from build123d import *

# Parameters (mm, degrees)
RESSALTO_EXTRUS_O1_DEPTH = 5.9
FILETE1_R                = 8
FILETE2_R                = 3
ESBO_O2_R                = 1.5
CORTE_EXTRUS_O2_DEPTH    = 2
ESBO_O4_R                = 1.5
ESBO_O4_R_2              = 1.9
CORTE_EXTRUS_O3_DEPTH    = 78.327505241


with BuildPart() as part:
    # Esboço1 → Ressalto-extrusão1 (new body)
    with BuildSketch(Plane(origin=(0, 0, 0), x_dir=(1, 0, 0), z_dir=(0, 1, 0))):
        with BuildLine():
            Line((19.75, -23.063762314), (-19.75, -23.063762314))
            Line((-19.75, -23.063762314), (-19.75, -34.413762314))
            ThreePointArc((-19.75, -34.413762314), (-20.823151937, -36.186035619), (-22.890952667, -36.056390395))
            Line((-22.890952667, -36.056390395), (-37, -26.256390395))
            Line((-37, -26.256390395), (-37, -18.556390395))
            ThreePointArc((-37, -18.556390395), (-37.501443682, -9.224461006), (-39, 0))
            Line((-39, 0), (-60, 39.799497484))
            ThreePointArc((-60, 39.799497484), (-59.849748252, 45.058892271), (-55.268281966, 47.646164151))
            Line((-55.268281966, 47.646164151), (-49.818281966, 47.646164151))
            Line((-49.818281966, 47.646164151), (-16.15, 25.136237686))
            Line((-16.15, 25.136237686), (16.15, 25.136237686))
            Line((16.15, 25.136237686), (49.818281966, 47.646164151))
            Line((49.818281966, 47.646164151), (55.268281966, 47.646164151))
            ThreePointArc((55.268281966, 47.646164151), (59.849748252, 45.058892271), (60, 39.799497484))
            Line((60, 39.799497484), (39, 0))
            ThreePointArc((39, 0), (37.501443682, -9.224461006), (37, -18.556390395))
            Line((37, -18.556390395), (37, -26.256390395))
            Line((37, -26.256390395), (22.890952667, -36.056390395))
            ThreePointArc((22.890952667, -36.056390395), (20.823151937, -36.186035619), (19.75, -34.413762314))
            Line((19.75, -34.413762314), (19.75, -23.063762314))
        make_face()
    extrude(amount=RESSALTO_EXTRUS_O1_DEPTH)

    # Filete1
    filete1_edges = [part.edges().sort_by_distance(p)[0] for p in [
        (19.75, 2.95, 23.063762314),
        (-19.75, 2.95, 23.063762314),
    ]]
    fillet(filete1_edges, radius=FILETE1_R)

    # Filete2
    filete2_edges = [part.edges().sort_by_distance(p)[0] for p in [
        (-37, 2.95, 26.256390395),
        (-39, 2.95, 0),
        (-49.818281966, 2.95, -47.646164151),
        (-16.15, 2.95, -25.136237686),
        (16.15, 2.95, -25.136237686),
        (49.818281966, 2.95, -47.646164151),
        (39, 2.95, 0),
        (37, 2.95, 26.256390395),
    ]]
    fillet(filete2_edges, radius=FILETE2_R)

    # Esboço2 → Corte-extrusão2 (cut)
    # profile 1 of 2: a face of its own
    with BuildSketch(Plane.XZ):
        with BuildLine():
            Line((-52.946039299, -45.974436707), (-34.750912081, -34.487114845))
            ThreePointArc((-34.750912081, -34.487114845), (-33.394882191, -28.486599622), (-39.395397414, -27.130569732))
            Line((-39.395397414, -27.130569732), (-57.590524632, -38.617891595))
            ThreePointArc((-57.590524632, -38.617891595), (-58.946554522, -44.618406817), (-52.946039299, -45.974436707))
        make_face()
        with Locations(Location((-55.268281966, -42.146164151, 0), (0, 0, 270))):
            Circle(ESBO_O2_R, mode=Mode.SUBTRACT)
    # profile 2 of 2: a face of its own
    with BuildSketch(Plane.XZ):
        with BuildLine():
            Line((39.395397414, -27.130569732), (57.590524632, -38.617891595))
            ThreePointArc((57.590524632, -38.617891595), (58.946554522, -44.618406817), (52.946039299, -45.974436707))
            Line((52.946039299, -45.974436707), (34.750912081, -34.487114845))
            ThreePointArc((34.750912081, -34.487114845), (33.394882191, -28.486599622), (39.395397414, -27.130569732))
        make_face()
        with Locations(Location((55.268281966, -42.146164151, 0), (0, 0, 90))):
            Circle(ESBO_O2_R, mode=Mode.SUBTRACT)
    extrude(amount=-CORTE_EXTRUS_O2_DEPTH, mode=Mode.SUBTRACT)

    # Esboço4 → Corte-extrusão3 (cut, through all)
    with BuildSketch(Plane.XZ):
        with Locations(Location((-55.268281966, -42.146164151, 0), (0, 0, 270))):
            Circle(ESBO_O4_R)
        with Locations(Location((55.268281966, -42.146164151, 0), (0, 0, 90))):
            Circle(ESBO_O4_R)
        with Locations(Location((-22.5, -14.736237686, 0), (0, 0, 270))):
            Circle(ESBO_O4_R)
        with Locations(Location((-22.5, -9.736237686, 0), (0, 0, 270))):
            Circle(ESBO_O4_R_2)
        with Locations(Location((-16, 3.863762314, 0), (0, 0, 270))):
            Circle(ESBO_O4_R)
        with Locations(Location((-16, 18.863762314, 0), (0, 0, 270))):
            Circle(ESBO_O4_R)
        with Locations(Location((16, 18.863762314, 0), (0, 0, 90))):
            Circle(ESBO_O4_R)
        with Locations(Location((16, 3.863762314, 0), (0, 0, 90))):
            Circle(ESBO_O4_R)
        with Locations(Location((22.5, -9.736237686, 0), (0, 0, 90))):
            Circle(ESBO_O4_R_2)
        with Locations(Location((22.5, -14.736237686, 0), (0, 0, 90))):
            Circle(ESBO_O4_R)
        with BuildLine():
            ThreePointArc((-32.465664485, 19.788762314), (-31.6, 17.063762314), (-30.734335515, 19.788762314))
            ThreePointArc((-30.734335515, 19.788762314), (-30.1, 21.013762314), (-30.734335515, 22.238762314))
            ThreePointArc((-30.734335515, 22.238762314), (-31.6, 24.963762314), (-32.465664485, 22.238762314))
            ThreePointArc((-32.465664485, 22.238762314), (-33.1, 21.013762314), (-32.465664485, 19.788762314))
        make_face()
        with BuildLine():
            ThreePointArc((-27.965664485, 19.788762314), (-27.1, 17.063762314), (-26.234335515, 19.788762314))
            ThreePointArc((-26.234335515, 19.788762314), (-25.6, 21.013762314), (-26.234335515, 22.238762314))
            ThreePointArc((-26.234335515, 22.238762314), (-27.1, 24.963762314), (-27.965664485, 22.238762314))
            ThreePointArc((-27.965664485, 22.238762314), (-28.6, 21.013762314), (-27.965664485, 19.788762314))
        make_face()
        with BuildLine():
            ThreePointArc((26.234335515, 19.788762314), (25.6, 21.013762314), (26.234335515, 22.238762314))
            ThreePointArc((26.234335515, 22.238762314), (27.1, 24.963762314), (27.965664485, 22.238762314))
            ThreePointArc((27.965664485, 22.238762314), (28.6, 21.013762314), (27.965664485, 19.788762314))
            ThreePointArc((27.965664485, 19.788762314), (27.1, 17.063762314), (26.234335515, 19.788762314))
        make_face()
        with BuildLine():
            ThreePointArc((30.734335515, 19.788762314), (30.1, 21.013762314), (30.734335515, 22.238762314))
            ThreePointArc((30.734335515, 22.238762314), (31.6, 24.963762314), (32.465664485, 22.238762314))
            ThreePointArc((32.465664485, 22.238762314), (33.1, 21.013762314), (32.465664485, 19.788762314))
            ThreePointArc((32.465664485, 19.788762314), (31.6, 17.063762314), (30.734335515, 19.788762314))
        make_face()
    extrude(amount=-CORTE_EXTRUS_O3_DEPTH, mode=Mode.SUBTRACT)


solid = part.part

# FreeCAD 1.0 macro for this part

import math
import FreeCAD as App
import Part
import Sketcher
Q = App.Units.Quantity


def edges_at(feature, points):
    """Names of the edges that pass closest to the given points."""
    edges = feature.Shape.Edges
    near = lambda p: min(range(len(edges)), key=lambda i: edges[i].distToShape(Part.Vertex(*p))[0])
    return sorted({f"Edge{near(p) + 1}" for p in points})

doc = App.newDocument("Part")
body = doc.addObject("PartDesign::Body", "Body")

# Sketch on XZ plane
sketch1 = body.newObject("Sketcher::SketchObject", "Sketch")
sketch1.AttachmentSupport = (doc.getObject("XZ_Plane"), [""])
sketch1.MapMode = "FlatFace"
sketch1.addGeometry([
    Part.LineSegment(App.Vector(-19.8, 23.1, 0), App.Vector(19.8, 23.1, 0)),  # 0
    Part.LineSegment(App.Vector(19.8, 23.1, 0), App.Vector(19.8, 34.4, 0)),  # 1
    Part.ArcOfCircle(Part.Circle(App.Vector(21.8, 34.4, 0), App.Vector(0, 0, 1), 2), math.radians(55), math.radians(180)),  # 2
    Part.LineSegment(App.Vector(22.9, 36.1, 0), App.Vector(37, 26.3, 0)),  # 3
    Part.LineSegment(App.Vector(37, 26.3, 0), App.Vector(37, 18.6, 0)),  # 4
    Part.ArcOfCircle(Part.Circle(App.Vector(124.1, 18.6, 0), App.Vector(0, 0, 1), 87.1), math.radians(-180), math.radians(-167.7)),  # 5
    Part.LineSegment(App.Vector(39, 0, 0), App.Vector(60, -39.8, 0)),  # 6
    Part.ArcOfCircle(Part.Circle(App.Vector(55.3, -42.3, 0), App.Vector(0, 0, 1), 5.3), math.radians(-90), math.radians(28)),  # 7
    Part.LineSegment(App.Vector(55.3, -47.6, 0), App.Vector(49.8, -47.6, 0)),  # 8
    Part.LineSegment(App.Vector(49.8, -47.6, 0), App.Vector(16.1, -25.1, 0)),  # 9
    Part.LineSegment(App.Vector(16.1, -25.1, 0), App.Vector(-16.1, -25.1, 0)),  # 10
    Part.LineSegment(App.Vector(-16.1, -25.1, 0), App.Vector(-49.8, -47.6, 0)),  # 11
    Part.LineSegment(App.Vector(-49.8, -47.6, 0), App.Vector(-55.3, -47.6, 0)),  # 12
    Part.ArcOfCircle(Part.Circle(App.Vector(-55.3, -42.3, 0), App.Vector(0, 0, 1), 5.3), math.radians(152), math.radians(270)),  # 13
    Part.LineSegment(App.Vector(-60, -39.8, 0), App.Vector(-39, 0, 0)),  # 14
    Part.ArcOfCircle(Part.Circle(App.Vector(-124.1, 18.6, 0), App.Vector(0, 0, 1), 87.1), math.radians(-12.3), math.radians(0)),  # 15
    Part.LineSegment(App.Vector(-37, 18.6, 0), App.Vector(-37, 26.3, 0)),  # 16
    Part.LineSegment(App.Vector(-37, 26.3, 0), App.Vector(-22.9, 36.1, 0)),  # 17
    Part.ArcOfCircle(Part.Circle(App.Vector(-21.8, 34.4, 0), App.Vector(0, 0, 1), 2), math.radians(0), math.radians(125)),  # 18
    Part.LineSegment(App.Vector(-19.8, 34.4, 0), App.Vector(-19.8, 23.1, 0)),  # 19
], False)
sketch1.addConstraint([
    Sketcher.Constraint("Coincident", 0, 2, 1, 1),
    Sketcher.Constraint("Tangent", 1, 2, 2, 2),
    Sketcher.Constraint("Tangent", 2, 1, 3, 1),
    Sketcher.Constraint("Coincident", 3, 2, 4, 1),
    Sketcher.Constraint("Tangent", 4, 2, 5, 1),
    Sketcher.Constraint("Coincident", 5, 2, 6, 1),
    Sketcher.Constraint("Tangent", 6, 2, 7, 2),
    Sketcher.Constraint("Tangent", 7, 1, 8, 1),
    Sketcher.Constraint("Coincident", 8, 2, 9, 1),
    Sketcher.Constraint("Coincident", 9, 2, 10, 1),
    Sketcher.Constraint("Coincident", 10, 2, 11, 1),
    Sketcher.Constraint("Coincident", 11, 2, 12, 1),
    Sketcher.Constraint("Tangent", 12, 2, 13, 2),
    Sketcher.Constraint("Tangent", 13, 1, 14, 1),
    Sketcher.Constraint("Coincident", 14, 2, 15, 1),
    Sketcher.Constraint("Tangent", 15, 2, 16, 1),
    Sketcher.Constraint("Coincident", 16, 2, 17, 1),
    Sketcher.Constraint("Tangent", 17, 2, 18, 2),
    Sketcher.Constraint("Tangent", 18, 1, 19, 1),
    Sketcher.Constraint("Coincident", 19, 2, 0, 1),
    Sketcher.Constraint("Horizontal", 0),
    Sketcher.Constraint("Vertical", 1),
    Sketcher.Constraint("Vertical", 4),
    Sketcher.Constraint("Horizontal", 8),
    Sketcher.Constraint("Horizontal", 10),
    Sketcher.Constraint("Horizontal", 12),
    Sketcher.Constraint("Vertical", 16),
    Sketcher.Constraint("Vertical", 19),
    Sketcher.Constraint("Equal", 7, 13),
    Sketcher.Constraint("Equal", 5, 15),
    Sketcher.Constraint("Equal", 2, 18),
    Sketcher.Constraint("Symmetric", 5, 2, 14, 2, -1, 1),
    Sketcher.Constraint("Symmetric", 7, 3, 13, 3, -2),
    Sketcher.Constraint("Symmetric", 5, 3, 15, 3, -2),
    Sketcher.Constraint("Symmetric", 2, 3, 18, 3, -2),
    Sketcher.Constraint("Horizontal", 3, 2, 16, 2),
    Sketcher.Constraint("Equal", 8, 12),
    Sketcher.Constraint("Equal", 9, 11),
    Sketcher.Constraint("Radius", 2, Q("2 mm")),
    Sketcher.Constraint("Radius", 7, Q("5.35 mm")),
    Sketcher.Constraint("Distance", 6, Q("45 mm")),
    Sketcher.Constraint("DistanceX", 0, 1, 0, 2, Q("39.5 mm")),
    Sketcher.Constraint("DistanceX", 10, 2, 10, 1, Q("32.3 mm")),
    Sketcher.Constraint("DistanceY", 4, 2, 4, 1, Q("7.7 mm")),
    Sketcher.Constraint("DistanceX", -1, 1, 3, 2, Q("37 mm")),
    Sketcher.Constraint("DistanceX", -1, 1, 5, 2, Q("39 mm")),
    Sketcher.Constraint("DistanceX", -1, 1, 6, 2, Q("60 mm")),
    Sketcher.Constraint("Distance", 9, Q("40.5 mm")),
    Sketcher.Constraint("DistanceX", 8, 2, 8, 1, Q("5.45 mm")),
    Sketcher.Constraint("DistanceY", 1, 1, 1, 2, Q("11.35 mm")),
    Sketcher.Constraint("DistanceY", 3, 2, 2, 1, Q("9.8 mm")),
    Sketcher.Constraint("DistanceY", 10, 2, 0, 2, Q("48.2 mm")),
])
pad1 = body.newObject("PartDesign::Pad", "Pad")
pad1.Profile = sketch1
pad1.Length = 5.9
pad1.Reversed = True
doc.recompute()

fillet = body.newObject("PartDesign::Fillet", "Fillet")
fillet.Base = (pad1, edges_at(pad1, [(19.75, 2.95, 23.064), (-19.75, 2.95, 23.064)]))
fillet.Radius = 8
doc.recompute()

fillet2 = body.newObject("PartDesign::Fillet", "Fillet001")
fillet2.Base = (fillet, edges_at(fillet, [
    (-37, 2.95, 26.256),
    (-39, 2.95, 0),
    (-49.818, 2.95, -47.646),
    (-16.15, 2.95, -25.136),
    (16.15, 2.95, -25.136),
    (49.818, 2.95, -47.646),
    (39, 2.95, 0),
    (37, 2.95, 26.256),
]))
fillet2.Radius = 3

# Sketch on XZ plane
sketch2 = body.newObject("Sketcher::SketchObject", "Sketch001")
sketch2.AttachmentSupport = (doc.getObject("XZ_Plane"), [""])
sketch2.MapMode = "FlatFace"
sketch2.addGeometry([
    Part.LineSegment(App.Vector(-52.9, -46, 0), App.Vector(-34.8, -34.5, 0)),  # 0
    Part.ArcOfCircle(Part.Circle(App.Vector(-37.1, -30.8, 0), App.Vector(0, 0, 1), 4.3), math.radians(-58), math.radians(122)),  # 1
    Part.LineSegment(App.Vector(-39.4, -27.1, 0), App.Vector(-57.6, -38.6, 0)),  # 2
    Part.ArcOfCircle(Part.Circle(App.Vector(-55.3, -42.3, 0), App.Vector(0, 0, 1), 4.3), math.radians(122), math.radians(302)),  # 3
    Part.Circle(App.Vector(-55.3, -42.1, 0), App.Vector(0, 0, 1), 1.5),  # 4
    Part.LineSegment(App.Vector(57.6, -38.6, 0), App.Vector(39.4, -27.1, 0)),  # 5
    Part.ArcOfCircle(Part.Circle(App.Vector(37.1, -30.8, 0), App.Vector(0, 0, 1), 4.3), math.radians(58), math.radians(238)),  # 6
    Part.LineSegment(App.Vector(34.8, -34.5, 0), App.Vector(52.9, -46, 0)),  # 7
    Part.ArcOfCircle(Part.Circle(App.Vector(55.3, -42.3, 0), App.Vector(0, 0, 1), 4.3), math.radians(-122), math.radians(58)),  # 8
    Part.Circle(App.Vector(55.3, -42.1, 0), App.Vector(0, 0, 1), 1.5),  # 9
], False)
sketch2.addConstraint([
    Sketcher.Constraint("Tangent", 0, 2, 1, 1),
    Sketcher.Constraint("Tangent", 1, 2, 2, 1),
    Sketcher.Constraint("Tangent", 2, 2, 3, 1),
    Sketcher.Constraint("Tangent", 3, 2, 0, 1),
    Sketcher.Constraint("Tangent", 5, 2, 6, 1),
    Sketcher.Constraint("Tangent", 6, 2, 7, 1),
    Sketcher.Constraint("Tangent", 7, 2, 8, 1),
    Sketcher.Constraint("Tangent", 8, 2, 5, 1),
    Sketcher.Constraint("Equal", 1, 3),
    Sketcher.Constraint("Equal", 3, 6),
    Sketcher.Constraint("Equal", 6, 8),
    Sketcher.Constraint("Equal", 4, 9),
    Sketcher.Constraint("Symmetric", 1, 3, 6, 3, -2),
    Sketcher.Constraint("Symmetric", 3, 3, 8, 3, -2),
    Sketcher.Constraint("Symmetric", 4, 3, 9, 3, -2),
    Sketcher.Constraint("Vertical", 3, 3, 4, 3),
    Sketcher.Constraint("Diameter", 4, Q("3 mm")),
    Sketcher.Constraint("Radius", 1, Q("4.35 mm")),
    Sketcher.Constraint("DistanceY", 3, 3, 4, 3, Q("0.15 mm")),
    Sketcher.Constraint("DistanceX", 3, 3, -1, 1, Q("55.268282 mm")),
    Sketcher.Constraint("DistanceY", 1, 2, -1, 1, Q("27.13057 mm")),
    Sketcher.Constraint("DistanceY", 2, 2, -1, 1, Q("38.617892 mm")),
    Sketcher.Constraint("DistanceX", 3, 2, -1, 1, Q("52.946039 mm")),
])
pocket1 = body.newObject("PartDesign::Pocket", "Pocket")
pocket1.Profile = sketch2
pocket1.Length = 2

# Sketch on XZ plane
sketch3 = body.newObject("Sketcher::SketchObject", "Sketch002")
sketch3.AttachmentSupport = (doc.getObject("XZ_Plane"), [""])
sketch3.MapMode = "FlatFace"
sketch3.addGeometry([
    Part.Circle(App.Vector(-55.3, -42.1, 0), App.Vector(0, 0, 1), 1.5),  # 0
    Part.Circle(App.Vector(55.3, -42.1, 0), App.Vector(0, 0, 1), 1.5),  # 1
    Part.Circle(App.Vector(-22.5, -14.7, 0), App.Vector(0, 0, 1), 1.5),  # 2
    Part.Circle(App.Vector(-22.5, -9.7, 0), App.Vector(0, 0, 1), 1.9),  # 3
    Part.Circle(App.Vector(-16, 3.9, 0), App.Vector(0, 0, 1), 1.5),  # 4
    Part.Circle(App.Vector(-16, 18.9, 0), App.Vector(0, 0, 1), 1.5),  # 5
    Part.Circle(App.Vector(16, 18.9, 0), App.Vector(0, 0, 1), 1.5),  # 6
    Part.Circle(App.Vector(16, 3.9, 0), App.Vector(0, 0, 1), 1.5),  # 7
    Part.Circle(App.Vector(22.5, -9.7, 0), App.Vector(0, 0, 1), 1.9),  # 8
    Part.Circle(App.Vector(22.5, -14.7, 0), App.Vector(0, 0, 1), 1.5),  # 9
    Part.ArcOfCircle(Part.Circle(App.Vector(-31.6, 18.6, 0), App.Vector(0, 0, 1), 1.5), math.radians(125), math.radians(415)),  # 10
    Part.ArcOfCircle(Part.Circle(App.Vector(-31.6, 21, 0), App.Vector(0, 0, 1), 1.5), math.radians(-55), math.radians(55)),  # 11
    Part.ArcOfCircle(Part.Circle(App.Vector(-31.6, 23.5, 0), App.Vector(0, 0, 1), 1.5), math.radians(-55), math.radians(235)),  # 12
    Part.ArcOfCircle(Part.Circle(App.Vector(-31.6, 21, 0), App.Vector(0, 0, 1), 1.5), math.radians(125), math.radians(235)),  # 13
    Part.ArcOfCircle(Part.Circle(App.Vector(-27.1, 18.6, 0), App.Vector(0, 0, 1), 1.5), math.radians(125), math.radians(415)),  # 14
    Part.ArcOfCircle(Part.Circle(App.Vector(-27.1, 21, 0), App.Vector(0, 0, 1), 1.5), math.radians(-55), math.radians(55)),  # 15
    Part.ArcOfCircle(Part.Circle(App.Vector(-27.1, 23.5, 0), App.Vector(0, 0, 1), 1.5), math.radians(-55), math.radians(235)),  # 16
    Part.ArcOfCircle(Part.Circle(App.Vector(-27.1, 21, 0), App.Vector(0, 0, 1), 1.5), math.radians(125), math.radians(235)),  # 17
    Part.ArcOfCircle(Part.Circle(App.Vector(27.1, 21, 0), App.Vector(0, 0, 1), 1.5), math.radians(125), math.radians(235)),  # 18
    Part.ArcOfCircle(Part.Circle(App.Vector(27.1, 18.6, 0), App.Vector(0, 0, 1), 1.5), math.radians(125), math.radians(415)),  # 19
    Part.ArcOfCircle(Part.Circle(App.Vector(27.1, 21, 0), App.Vector(0, 0, 1), 1.5), math.radians(-55), math.radians(55)),  # 20
    Part.ArcOfCircle(Part.Circle(App.Vector(27.1, 23.5, 0), App.Vector(0, 0, 1), 1.5), math.radians(-55), math.radians(235)),  # 21
    Part.ArcOfCircle(Part.Circle(App.Vector(31.6, 21, 0), App.Vector(0, 0, 1), 1.5), math.radians(125), math.radians(235)),  # 22
    Part.ArcOfCircle(Part.Circle(App.Vector(31.6, 18.6, 0), App.Vector(0, 0, 1), 1.5), math.radians(125), math.radians(415)),  # 23
    Part.ArcOfCircle(Part.Circle(App.Vector(31.6, 21, 0), App.Vector(0, 0, 1), 1.5), math.radians(-55), math.radians(55)),  # 24
    Part.ArcOfCircle(Part.Circle(App.Vector(31.6, 23.5, 0), App.Vector(0, 0, 1), 1.5), math.radians(-55), math.radians(235)),  # 25
], False)
sketch3.addConstraint([
    Sketcher.Constraint("Coincident", 10, 2, 11, 1),
    Sketcher.Constraint("Coincident", 11, 2, 12, 1),
    Sketcher.Constraint("Coincident", 12, 2, 13, 1),
    Sketcher.Constraint("Coincident", 13, 2, 10, 1),
    Sketcher.Constraint("Coincident", 14, 2, 15, 1),
    Sketcher.Constraint("Coincident", 15, 2, 16, 1),
    Sketcher.Constraint("Coincident", 16, 2, 17, 1),
    Sketcher.Constraint("Coincident", 17, 2, 14, 1),
    Sketcher.Constraint("Coincident", 18, 2, 19, 1),
    Sketcher.Constraint("Coincident", 19, 2, 20, 1),
    Sketcher.Constraint("Coincident", 20, 2, 21, 1),
    Sketcher.Constraint("Coincident", 21, 2, 18, 1),
    Sketcher.Constraint("Coincident", 22, 2, 23, 1),
    Sketcher.Constraint("Coincident", 23, 2, 24, 1),
    Sketcher.Constraint("Coincident", 24, 2, 25, 1),
    Sketcher.Constraint("Coincident", 25, 2, 22, 1),
    Sketcher.Constraint("Coincident", 13, 3, 11, 3),
    Sketcher.Constraint("Coincident", 17, 3, 15, 3),
    Sketcher.Constraint("Coincident", 20, 3, 18, 3),
    Sketcher.Constraint("Coincident", 24, 3, 22, 3),
    Sketcher.Constraint("Equal", 0, 1),
    Sketcher.Constraint("Equal", 1, 2),
    Sketcher.Constraint("Equal", 2, 4),
    Sketcher.Constraint("Equal", 4, 5),
    Sketcher.Constraint("Equal", 5, 6),
    Sketcher.Constraint("Equal", 6, 7),
    Sketcher.Constraint("Equal", 3, 8),
    Sketcher.Constraint("Equal", 7, 9),
    Sketcher.Constraint("Equal", 9, 10),
    Sketcher.Constraint("Equal", 10, 11),
    Sketcher.Constraint("Equal", 11, 12),
    Sketcher.Constraint("Equal", 12, 13),
    Sketcher.Constraint("Equal", 13, 14),
    Sketcher.Constraint("Equal", 14, 15),
    Sketcher.Constraint("Equal", 15, 16),
    Sketcher.Constraint("Equal", 16, 17),
    Sketcher.Constraint("Equal", 17, 18),
    Sketcher.Constraint("Equal", 18, 19),
    Sketcher.Constraint("Equal", 19, 20),
    Sketcher.Constraint("Equal", 20, 21),
    Sketcher.Constraint("Equal", 21, 22),
    Sketcher.Constraint("Equal", 22, 23),
    Sketcher.Constraint("Equal", 23, 24),
    Sketcher.Constraint("Equal", 24, 25),
    Sketcher.Constraint("Symmetric", 0, 3, 1, 3, -2),
    Sketcher.Constraint("Symmetric", 5, 3, 6, 3, -2),
    Sketcher.Constraint("Symmetric", 4, 3, 7, 3, -2),
    Sketcher.Constraint("Symmetric", 3, 3, 8, 3, -2),
    Sketcher.Constraint("Symmetric", 2, 3, 9, 3, -2),
    Sketcher.Constraint("Symmetric", 15, 3, 18, 3, -2),
    Sketcher.Constraint("Symmetric", 14, 3, 19, 3, -2),
    Sketcher.Constraint("Symmetric", 16, 3, 21, 3, -2),
    Sketcher.Constraint("Symmetric", 11, 3, 22, 3, -2),
    Sketcher.Constraint("Symmetric", 10, 3, 23, 3, -2),
    Sketcher.Constraint("Symmetric", 12, 3, 25, 3, -2),
    Sketcher.Constraint("Horizontal", 10, 3, 14, 3),
    Sketcher.Constraint("Horizontal", 13, 3, 15, 3),
    Sketcher.Constraint("Horizontal", 12, 3, 16, 3),
    Sketcher.Constraint("Horizontal", 11, 2, 12, 2),
    Sketcher.Constraint("Horizontal", 10, 2, 13, 2),
    Sketcher.Constraint("Horizontal", 13, 2, 14, 2),
    Sketcher.Constraint("Horizontal", 12, 2, 15, 2),
    Sketcher.Constraint("Vertical", 2, 3, 3, 3),
    Sketcher.Constraint("Vertical", 4, 3, 5, 3),
    Sketcher.Constraint("Vertical", 10, 2, 11, 2),
    Sketcher.Constraint("Diameter", 0, Q("3 mm")),
    Sketcher.Constraint("Diameter", 3, Q("3.8 mm")),
    Sketcher.Constraint("DistanceX", 4, 3, -1, 1, Q("16 mm")),
    Sketcher.Constraint("DistanceY", 2, 3, 3, 3, Q("5 mm")),
    Sketcher.Constraint("DistanceY", 4, 3, 5, 3, Q("15 mm")),
    Sketcher.Constraint("DistanceX", 3, 3, 8, 3, Q("45 mm")),
    Sketcher.Constraint("DistanceX", 10, 3, -1, 1, Q("31.6 mm")),
    Sketcher.Constraint("DistanceX", 14, 3, -1, 1, Q("27.1 mm")),
    Sketcher.Constraint("DistanceY", 3, 3, 4, 3, Q("13.6 mm")),
    Sketcher.Constraint("DistanceY", 10, 3, 5, 3, Q("0.3 mm")),
    Sketcher.Constraint("DistanceY", 10, 3, 12, 3, Q("4.9 mm")),
    Sketcher.Constraint("DistanceX", 0, 3, -1, 1, Q("55.268282 mm")),
    Sketcher.Constraint("DistanceY", 0, 3, -1, 1, Q("42.146164 mm")),
    Sketcher.Constraint("DistanceY", 2, 3, -1, 1, Q("14.736238 mm")),
])
pocket2 = body.newObject("PartDesign::Pocket", "Pocket001")
pocket2.Profile = sketch3
pocket2.Type = "ThroughAll"

doc.recompute()
